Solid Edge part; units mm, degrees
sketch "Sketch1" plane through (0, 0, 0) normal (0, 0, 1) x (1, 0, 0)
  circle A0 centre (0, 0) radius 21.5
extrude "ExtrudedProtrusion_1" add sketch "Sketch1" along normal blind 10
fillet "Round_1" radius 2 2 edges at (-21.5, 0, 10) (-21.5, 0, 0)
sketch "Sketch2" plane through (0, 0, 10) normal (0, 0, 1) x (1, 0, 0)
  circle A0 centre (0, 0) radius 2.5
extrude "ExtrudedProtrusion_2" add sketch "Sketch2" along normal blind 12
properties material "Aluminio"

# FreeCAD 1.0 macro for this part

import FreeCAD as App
import Part
import Sketcher

V = App.Vector
Q = App.Units.Quantity


def edges_at(feature, points):
    """Names of the edges that pass closest to the given points."""
    edges = feature.Shape.Edges
    near = lambda p: min(range(len(edges)), key=lambda i: edges[i].distToShape(Part.Vertex(*p))[0])
    return sorted({f"Edge{near(p) + 1}" for p in points})

doc = App.newDocument("Part")
body = doc.addObject("PartDesign::Body", "Body")

# Sketch on XY plane
sketch1 = body.newObject("Sketcher::SketchObject", "Sketch")
sketch1.AttachmentSupport = (doc.getObject("XY_Plane"), [""])
sketch1.MapMode = "FlatFace"
sketch1.addGeometry(Part.Circle(V(0, 0, 0), V(0, 0, 1), 21.5), False)
sketch1.addConstraint([
    Sketcher.Constraint("Coincident", 0, 3, -1, 1),
    Sketcher.Constraint("Diameter", 0, Q("43 mm")),
])
pad1 = body.newObject("PartDesign::Pad", "Pad")
pad1.Profile = sketch1
pad1.Length = 10
doc.recompute()

fillet = body.newObject("PartDesign::Fillet", "Fillet")
fillet.Base = (pad1, edges_at(pad1, [(-21.5, 0, 10), (-21.5, 0, 0)]))
fillet.Radius = 2

# Sketch on XY plane
sketch2 = body.newObject("Sketcher::SketchObject", "Sketch001")
sketch2.AttachmentSupport = (doc.getObject("XY_Plane"), [""])
sketch2.MapMode = "FlatFace"
sketch2.AttachmentOffset = App.Placement(V(0, 0, 10), App.Rotation())
sketch2.addGeometry(Part.Circle(V(0, 0, 0), V(0, 0, 1), 2.5), False)
sketch2.addConstraint([
    Sketcher.Constraint("Coincident", 0, 3, -1, 1),
    Sketcher.Constraint("Diameter", 0, Q("5 mm")),
])
pad2 = body.newObject("PartDesign::Pad", "Pad001")
pad2.Profile = sketch2
pad2.Length = 12

doc.recompute()
